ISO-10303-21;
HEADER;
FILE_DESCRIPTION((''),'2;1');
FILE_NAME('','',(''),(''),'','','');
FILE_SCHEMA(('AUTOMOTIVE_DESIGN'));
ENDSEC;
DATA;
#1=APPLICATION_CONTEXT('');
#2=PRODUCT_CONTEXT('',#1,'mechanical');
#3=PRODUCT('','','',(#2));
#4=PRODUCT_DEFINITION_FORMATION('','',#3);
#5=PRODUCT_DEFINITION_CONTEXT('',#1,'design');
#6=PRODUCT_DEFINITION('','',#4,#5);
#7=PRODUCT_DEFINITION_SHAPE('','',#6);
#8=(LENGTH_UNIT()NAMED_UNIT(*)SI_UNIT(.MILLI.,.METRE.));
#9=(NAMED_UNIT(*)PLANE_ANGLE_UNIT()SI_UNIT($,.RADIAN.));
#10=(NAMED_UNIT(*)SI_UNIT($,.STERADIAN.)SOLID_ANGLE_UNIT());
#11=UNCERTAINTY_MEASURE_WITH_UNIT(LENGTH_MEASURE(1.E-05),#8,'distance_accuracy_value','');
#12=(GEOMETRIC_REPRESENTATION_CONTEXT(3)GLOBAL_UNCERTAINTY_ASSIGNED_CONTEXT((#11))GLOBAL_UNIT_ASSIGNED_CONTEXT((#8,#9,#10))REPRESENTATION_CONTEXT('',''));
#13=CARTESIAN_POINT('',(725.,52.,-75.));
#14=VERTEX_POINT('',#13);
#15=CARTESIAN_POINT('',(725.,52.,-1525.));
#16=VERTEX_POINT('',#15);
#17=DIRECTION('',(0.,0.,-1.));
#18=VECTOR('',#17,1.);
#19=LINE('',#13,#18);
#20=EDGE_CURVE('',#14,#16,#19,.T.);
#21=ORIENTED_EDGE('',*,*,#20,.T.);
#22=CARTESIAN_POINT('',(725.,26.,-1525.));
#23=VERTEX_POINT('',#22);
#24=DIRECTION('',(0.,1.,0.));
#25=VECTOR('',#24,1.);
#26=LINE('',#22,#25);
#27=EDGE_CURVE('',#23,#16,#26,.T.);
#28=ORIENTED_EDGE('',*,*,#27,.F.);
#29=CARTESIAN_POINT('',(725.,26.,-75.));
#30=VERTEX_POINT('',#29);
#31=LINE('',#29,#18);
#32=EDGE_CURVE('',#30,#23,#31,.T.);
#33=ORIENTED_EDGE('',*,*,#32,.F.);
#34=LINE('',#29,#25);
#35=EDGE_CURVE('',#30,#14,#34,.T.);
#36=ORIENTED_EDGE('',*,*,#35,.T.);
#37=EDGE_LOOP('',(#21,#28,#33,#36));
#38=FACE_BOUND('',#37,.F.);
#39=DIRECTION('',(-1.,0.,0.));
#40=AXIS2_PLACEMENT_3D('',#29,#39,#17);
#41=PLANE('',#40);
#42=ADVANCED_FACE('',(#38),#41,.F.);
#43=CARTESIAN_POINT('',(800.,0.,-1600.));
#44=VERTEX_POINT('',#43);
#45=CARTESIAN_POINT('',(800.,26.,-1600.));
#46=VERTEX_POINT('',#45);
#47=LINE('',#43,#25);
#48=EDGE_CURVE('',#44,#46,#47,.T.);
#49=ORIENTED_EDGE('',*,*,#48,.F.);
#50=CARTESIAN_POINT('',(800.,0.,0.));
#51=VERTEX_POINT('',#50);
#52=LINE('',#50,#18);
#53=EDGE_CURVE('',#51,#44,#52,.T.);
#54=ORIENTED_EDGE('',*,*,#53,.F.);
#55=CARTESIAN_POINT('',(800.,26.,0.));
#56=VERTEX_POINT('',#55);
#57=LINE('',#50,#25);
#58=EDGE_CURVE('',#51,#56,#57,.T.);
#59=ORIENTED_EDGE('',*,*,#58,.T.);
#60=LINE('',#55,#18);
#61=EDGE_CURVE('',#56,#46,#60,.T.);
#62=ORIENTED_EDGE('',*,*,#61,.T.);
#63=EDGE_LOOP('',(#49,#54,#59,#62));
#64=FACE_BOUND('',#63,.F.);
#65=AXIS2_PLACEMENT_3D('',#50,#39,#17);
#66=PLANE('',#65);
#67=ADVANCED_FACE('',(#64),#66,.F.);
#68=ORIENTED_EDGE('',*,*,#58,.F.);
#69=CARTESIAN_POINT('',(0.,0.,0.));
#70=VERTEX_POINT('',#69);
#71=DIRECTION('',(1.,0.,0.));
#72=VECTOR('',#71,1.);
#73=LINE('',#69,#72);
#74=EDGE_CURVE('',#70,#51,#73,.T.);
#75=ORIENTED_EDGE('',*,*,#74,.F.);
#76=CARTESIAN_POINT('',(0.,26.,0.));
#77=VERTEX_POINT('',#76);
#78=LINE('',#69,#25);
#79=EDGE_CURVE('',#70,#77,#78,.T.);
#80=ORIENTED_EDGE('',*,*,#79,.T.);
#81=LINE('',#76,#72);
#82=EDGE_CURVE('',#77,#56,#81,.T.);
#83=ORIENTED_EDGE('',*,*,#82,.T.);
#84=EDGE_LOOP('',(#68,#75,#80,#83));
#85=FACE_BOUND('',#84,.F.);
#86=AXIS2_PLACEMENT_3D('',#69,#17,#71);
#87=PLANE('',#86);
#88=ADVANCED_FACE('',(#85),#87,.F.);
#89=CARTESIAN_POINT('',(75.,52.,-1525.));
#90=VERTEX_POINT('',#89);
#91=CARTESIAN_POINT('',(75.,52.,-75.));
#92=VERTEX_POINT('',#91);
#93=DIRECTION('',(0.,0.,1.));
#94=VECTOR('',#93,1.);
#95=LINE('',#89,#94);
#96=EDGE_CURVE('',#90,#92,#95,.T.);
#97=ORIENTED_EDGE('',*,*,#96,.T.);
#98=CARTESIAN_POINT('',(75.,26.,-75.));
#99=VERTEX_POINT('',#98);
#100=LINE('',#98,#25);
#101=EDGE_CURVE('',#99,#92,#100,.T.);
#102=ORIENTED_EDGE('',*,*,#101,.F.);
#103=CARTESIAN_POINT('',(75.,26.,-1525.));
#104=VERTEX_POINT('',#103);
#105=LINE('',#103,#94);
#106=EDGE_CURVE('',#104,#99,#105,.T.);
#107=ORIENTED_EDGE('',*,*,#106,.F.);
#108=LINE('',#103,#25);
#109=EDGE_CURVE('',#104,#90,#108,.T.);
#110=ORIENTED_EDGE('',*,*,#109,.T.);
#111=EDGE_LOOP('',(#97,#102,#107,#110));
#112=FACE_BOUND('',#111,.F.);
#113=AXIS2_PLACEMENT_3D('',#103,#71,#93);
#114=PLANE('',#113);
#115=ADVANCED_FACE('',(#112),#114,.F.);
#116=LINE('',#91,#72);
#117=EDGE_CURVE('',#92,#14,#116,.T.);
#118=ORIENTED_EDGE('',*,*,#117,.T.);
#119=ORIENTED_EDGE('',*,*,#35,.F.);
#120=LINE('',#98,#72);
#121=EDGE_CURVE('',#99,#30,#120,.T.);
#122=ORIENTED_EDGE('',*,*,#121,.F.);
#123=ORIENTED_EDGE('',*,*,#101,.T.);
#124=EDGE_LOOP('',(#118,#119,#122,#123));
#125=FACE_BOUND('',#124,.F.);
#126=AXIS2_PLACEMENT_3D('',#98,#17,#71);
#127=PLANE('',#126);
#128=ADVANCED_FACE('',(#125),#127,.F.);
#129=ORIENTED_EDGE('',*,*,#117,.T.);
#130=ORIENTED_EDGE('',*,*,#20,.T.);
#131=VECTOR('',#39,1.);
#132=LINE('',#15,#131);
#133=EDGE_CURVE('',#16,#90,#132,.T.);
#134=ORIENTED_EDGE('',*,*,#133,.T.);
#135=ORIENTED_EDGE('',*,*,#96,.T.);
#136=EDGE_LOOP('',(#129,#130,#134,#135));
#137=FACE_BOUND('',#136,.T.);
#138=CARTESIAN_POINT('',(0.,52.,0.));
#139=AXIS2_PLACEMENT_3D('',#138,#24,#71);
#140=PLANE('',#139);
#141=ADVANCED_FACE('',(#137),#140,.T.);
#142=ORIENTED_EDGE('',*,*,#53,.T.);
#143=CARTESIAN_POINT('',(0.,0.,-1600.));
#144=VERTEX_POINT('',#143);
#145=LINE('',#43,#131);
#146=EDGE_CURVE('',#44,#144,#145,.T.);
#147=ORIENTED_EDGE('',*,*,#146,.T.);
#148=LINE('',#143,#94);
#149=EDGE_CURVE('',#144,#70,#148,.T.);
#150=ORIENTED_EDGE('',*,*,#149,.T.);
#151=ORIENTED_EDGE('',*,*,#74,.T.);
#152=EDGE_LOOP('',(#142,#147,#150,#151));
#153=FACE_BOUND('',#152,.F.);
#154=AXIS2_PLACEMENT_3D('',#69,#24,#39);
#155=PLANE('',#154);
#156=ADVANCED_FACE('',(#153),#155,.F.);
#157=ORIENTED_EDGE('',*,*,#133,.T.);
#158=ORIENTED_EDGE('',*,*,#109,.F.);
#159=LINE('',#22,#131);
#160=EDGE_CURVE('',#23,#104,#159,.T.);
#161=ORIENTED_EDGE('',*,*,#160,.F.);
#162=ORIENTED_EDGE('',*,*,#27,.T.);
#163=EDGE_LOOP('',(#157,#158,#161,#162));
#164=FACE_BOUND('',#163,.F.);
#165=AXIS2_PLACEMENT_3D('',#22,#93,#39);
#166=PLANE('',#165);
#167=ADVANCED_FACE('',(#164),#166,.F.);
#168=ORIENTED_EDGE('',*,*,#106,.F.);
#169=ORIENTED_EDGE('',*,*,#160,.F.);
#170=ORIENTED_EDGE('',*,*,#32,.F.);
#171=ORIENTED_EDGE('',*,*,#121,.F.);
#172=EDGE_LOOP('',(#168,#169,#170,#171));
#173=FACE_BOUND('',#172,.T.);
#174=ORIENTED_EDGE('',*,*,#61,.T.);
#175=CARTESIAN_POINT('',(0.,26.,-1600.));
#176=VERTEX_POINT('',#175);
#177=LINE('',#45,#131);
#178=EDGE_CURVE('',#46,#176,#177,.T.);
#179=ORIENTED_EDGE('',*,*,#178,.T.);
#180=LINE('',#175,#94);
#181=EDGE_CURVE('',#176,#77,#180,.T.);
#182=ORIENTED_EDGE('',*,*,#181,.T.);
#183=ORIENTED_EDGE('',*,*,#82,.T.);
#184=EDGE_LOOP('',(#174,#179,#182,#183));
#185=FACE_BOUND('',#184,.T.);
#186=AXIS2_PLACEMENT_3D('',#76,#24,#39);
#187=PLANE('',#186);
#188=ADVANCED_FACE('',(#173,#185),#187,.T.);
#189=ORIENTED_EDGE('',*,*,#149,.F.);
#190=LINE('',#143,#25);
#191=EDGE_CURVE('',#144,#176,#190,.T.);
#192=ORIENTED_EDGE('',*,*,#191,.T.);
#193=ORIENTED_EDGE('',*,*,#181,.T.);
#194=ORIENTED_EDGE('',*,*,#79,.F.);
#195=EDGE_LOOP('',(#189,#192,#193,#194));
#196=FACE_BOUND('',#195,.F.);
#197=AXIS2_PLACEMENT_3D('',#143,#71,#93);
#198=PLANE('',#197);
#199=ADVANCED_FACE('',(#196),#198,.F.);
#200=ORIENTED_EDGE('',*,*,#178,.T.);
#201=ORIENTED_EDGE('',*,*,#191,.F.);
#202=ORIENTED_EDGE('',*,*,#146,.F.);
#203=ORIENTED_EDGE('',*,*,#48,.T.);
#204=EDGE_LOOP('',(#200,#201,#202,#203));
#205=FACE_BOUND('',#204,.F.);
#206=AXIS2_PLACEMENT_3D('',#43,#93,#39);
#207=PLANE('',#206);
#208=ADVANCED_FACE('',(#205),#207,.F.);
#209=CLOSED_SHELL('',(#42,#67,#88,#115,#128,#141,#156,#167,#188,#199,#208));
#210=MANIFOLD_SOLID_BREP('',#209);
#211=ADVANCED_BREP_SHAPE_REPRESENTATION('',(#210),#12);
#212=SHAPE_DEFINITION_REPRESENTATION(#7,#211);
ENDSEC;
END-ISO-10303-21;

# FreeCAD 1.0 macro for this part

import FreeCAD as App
import Part
import Sketcher

V = App.Vector

doc = App.newDocument("Part")
body = doc.addObject("PartDesign::Body", "Body")

sketch1 = body.newObject("Sketcher::SketchObject", "Sketch")
sketch1.AttachmentSupport = (doc.getObject("XZ_Plane"), [""])
sketch1.MapMode = "FlatFace"
sketch1.addGeometry([
    Part.LineSegment(V(0, -1600, 0), V(0, 0, 0)),
    Part.LineSegment(V(0, 0, 0), V(800, 0, 0)),
    Part.LineSegment(V(800, 0, 0), V(800, -1600, 0)),
    Part.LineSegment(V(800, -1600, 0), V(0, -1600, 0)),
], False)
sketch1.addConstraint([
    Sketcher.Constraint("Coincident", 0, 2, 1, 1),
    Sketcher.Constraint("Coincident", 1, 2, 2, 1),
    Sketcher.Constraint("Coincident", 2, 2, 3, 1),
    Sketcher.Constraint("Coincident", 3, 2, 0, 1),
    Sketcher.Constraint("Vertical", 0),
    Sketcher.Constraint("Horizontal", 1),
    Sketcher.Constraint("Vertical", 2),
    Sketcher.Constraint("Horizontal", 3),
    Sketcher.Constraint("Coincident", 0, 2, -1, 1),
    Sketcher.Constraint("DistanceX", 1, 1, 1, 2, 800.0),
    Sketcher.Constraint("DistanceY", 0, 1, 0, 2, 1600.0),
])
pad1 = body.newObject("PartDesign::Pad", "Pad")
pad1.Profile = sketch1
pad1.Length = 26
pad1.Reversed = True

sketch2 = body.newObject("Sketcher::SketchObject", "Sketch001")
sketch2.AttachmentSupport = (doc.getObject("XZ_Plane"), [""])
sketch2.MapMode = "FlatFace"
sketch2.AttachmentOffset = App.Placement(V(0, 0, -26), App.Rotation())
sketch2.addGeometry([
    Part.LineSegment(V(75, -1525, 0), V(75, -75, 0)),
    Part.LineSegment(V(75, -75, 0), V(725, -75, 0)),
    Part.LineSegment(V(725, -75, 0), V(725, -1525, 0)),
    Part.LineSegment(V(725, -1525, 0), V(75, -1525, 0)),
], False)
sketch2.addConstraint([
    Sketcher.Constraint("Coincident", 0, 2, 1, 1),
    Sketcher.Constraint("Coincident", 1, 2, 2, 1),
    Sketcher.Constraint("Coincident", 2, 2, 3, 1),
    Sketcher.Constraint("Coincident", 3, 2, 0, 1),
    Sketcher.Constraint("Vertical", 0),
    Sketcher.Constraint("Horizontal", 1),
    Sketcher.Constraint("Vertical", 2),
    Sketcher.Constraint("Horizontal", 3),
    Sketcher.Constraint("DistanceX", -1, 1, 0, 2, 75.0),
    Sketcher.Constraint("DistanceY", 0, 2, -1, 1, 75.0),
    Sketcher.Constraint("DistanceX", 1, 1, 1, 2, 650.0),
    Sketcher.Constraint("DistanceY", 0, 1, 0, 2, 1450.0),
])
pad2 = body.newObject("PartDesign::Pad", "Pad001")
pad2.Profile = sketch2
pad2.Length = 26
pad2.Reversed = True

doc.recompute()
